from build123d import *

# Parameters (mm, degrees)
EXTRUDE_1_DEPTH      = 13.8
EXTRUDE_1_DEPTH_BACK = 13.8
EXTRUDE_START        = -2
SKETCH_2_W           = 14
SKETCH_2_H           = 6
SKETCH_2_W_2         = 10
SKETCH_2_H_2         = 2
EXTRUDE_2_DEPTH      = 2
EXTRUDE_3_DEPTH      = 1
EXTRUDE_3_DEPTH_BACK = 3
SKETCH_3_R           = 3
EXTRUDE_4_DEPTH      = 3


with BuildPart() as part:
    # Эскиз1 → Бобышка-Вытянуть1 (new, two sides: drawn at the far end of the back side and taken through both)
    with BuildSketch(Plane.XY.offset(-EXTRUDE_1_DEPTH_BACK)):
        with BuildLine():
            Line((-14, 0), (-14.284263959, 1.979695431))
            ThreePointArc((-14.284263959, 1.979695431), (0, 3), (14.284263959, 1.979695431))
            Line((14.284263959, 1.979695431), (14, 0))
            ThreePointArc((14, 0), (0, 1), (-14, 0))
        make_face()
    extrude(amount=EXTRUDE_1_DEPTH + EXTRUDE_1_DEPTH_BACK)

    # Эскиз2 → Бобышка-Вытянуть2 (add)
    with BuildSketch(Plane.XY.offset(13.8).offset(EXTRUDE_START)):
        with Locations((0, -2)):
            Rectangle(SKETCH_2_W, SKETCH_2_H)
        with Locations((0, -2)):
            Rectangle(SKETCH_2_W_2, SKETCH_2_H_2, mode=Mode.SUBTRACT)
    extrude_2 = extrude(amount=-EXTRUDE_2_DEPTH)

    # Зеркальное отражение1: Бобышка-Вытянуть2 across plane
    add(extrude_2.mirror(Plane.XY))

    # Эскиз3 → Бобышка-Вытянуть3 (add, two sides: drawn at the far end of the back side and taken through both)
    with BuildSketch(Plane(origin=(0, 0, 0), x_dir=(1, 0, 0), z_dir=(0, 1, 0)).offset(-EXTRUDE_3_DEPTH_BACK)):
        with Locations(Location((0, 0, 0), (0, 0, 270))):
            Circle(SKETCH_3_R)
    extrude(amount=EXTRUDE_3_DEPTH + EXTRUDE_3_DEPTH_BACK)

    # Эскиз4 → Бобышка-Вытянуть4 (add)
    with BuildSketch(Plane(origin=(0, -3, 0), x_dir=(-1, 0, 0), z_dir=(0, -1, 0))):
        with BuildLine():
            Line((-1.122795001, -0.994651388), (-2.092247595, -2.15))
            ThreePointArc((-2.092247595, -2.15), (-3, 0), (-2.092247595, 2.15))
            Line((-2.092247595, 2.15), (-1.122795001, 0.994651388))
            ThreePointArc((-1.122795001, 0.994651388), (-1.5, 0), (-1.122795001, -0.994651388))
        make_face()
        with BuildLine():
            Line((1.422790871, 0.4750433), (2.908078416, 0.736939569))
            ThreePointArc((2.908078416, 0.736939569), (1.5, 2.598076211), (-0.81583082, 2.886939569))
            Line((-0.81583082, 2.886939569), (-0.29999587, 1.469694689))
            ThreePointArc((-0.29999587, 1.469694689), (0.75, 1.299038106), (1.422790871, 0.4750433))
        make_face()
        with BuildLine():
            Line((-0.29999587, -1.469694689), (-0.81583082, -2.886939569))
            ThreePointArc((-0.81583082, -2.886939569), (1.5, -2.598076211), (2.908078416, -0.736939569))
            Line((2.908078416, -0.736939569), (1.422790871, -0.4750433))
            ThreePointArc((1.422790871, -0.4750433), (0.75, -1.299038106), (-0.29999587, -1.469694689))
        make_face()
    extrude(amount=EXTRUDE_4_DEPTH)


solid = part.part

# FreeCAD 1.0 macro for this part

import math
import FreeCAD as App
import Part
import Sketcher

V = App.Vector
Q = App.Units.Quantity


def add_polygon(sketch, points):
    """Adds a closed chain of lines whose ends are joined by coincident constraints."""
    first, n = sketch.GeometryCount, len(points)
    for a, b in zip(points, points[1:] + points[:1]):
        sketch.addGeometry(Part.LineSegment(App.Vector(*a, 0), App.Vector(*b, 0)), False)
    for i in range(n):
        sketch.addConstraint(Sketcher.Constraint("Coincident", first + i, 2, first + (i + 1) % n, 1))

doc = App.newDocument("Part")
body = doc.addObject("PartDesign::Body", "Body")

sketch1 = body.newObject("Sketcher::SketchObject", "Sketch")
sketch1.AttachmentSupport = (doc.getObject("XY_Plane"), [""])
sketch1.MapMode = "FlatFace"
sketch1.addGeometry(Part.LineSegment(V(-14.3, 2, 0), V(-14, 0, 0)), False)
sketch1.addGeometry(Part.ArcOfCircle(Part.Circle(V(0, -97.5, 0), V(0, 0, 1), 98.5), math.radians(81.83), math.radians(98.17)), False)
sketch1.addGeometry(Part.LineSegment(V(14, 0, 0), V(14.3, 2, 0)), False)
sketch1.addGeometry(Part.ArcOfCircle(Part.Circle(V(0, -97.5, 0), V(0, 0, 1), 100.5), math.radians(81.83), math.radians(98.17)), False)
sketch1.addConstraint(Sketcher.Constraint("Coincident", 0, 2, 1, 2))
sketch1.addConstraint(Sketcher.Constraint("Coincident", 1, 1, 2, 1))
sketch1.addConstraint(Sketcher.Constraint("Coincident", 2, 2, 3, 1))
sketch1.addConstraint(Sketcher.Constraint("Coincident", 3, 2, 0, 1))
sketch1.addConstraint(Sketcher.Constraint("Coincident", 3, 3, 1, 3))
sketch1.addConstraint(Sketcher.Constraint("Symmetric", 0, 2, 1, 1, -1, 1))
sketch1.addConstraint(Sketcher.Constraint("Symmetric", 2, 2, 3, 2, -2))
sketch1.addConstraint(Sketcher.Constraint("Radius", 1, Q("98.5 mm")))
sketch1.addConstraint(Sketcher.Constraint("Radius", 3, Q("100.5 mm")))
sketch1.addConstraint(Sketcher.Constraint("DistanceX", 0, 2, -1, 1, Q("14 mm")))
sketch1.addConstraint(Sketcher.Constraint("DistanceX", -1, 1, 2, 2, Q("14.284264 mm")))
pad1 = body.newObject("PartDesign::Pad", "Pad")
pad1.Profile = sketch1
pad1.Type = "TwoLengths"
pad1.Length = 13.8
pad1.Length2 = 13.8

sketch2 = body.newObject("Sketcher::SketchObject", "Sketch001")
sketch2.AttachmentSupport = (doc.getObject("XY_Plane"), [""])
sketch2.MapMode = "FlatFace"
sketch2.AttachmentOffset = App.Placement(V(0, 0, 11.8), App.Rotation())
add_polygon(sketch2, [(-7, 1), (-7, -5), (7, -5), (7, 1)])
add_polygon(sketch2, [(5, -3), (-5, -3), (-5, -1), (5, -1)])
sketch2.addConstraint(Sketcher.Constraint("Vertical", 0))
sketch2.addConstraint(Sketcher.Constraint("Horizontal", 1))
sketch2.addConstraint(Sketcher.Constraint("Vertical", 2))
sketch2.addConstraint(Sketcher.Constraint("Horizontal", 3))
sketch2.addConstraint(Sketcher.Constraint("Horizontal", 4))
sketch2.addConstraint(Sketcher.Constraint("Vertical", 5))
sketch2.addConstraint(Sketcher.Constraint("Horizontal", 6))
sketch2.addConstraint(Sketcher.Constraint("Vertical", 7))
sketch2.addConstraint(Sketcher.Constraint("DistanceX", 1, 1, 1, 2, Q("14 mm")))
sketch2.addConstraint(Sketcher.Constraint("DistanceX", 4, 2, 4, 1, Q("10 mm")))
sketch2.addConstraint(Sketcher.Constraint("DistanceY", 0, 2, 0, 1, Q("6 mm")))
sketch2.addConstraint(Sketcher.Constraint("DistanceY", 5, 1, 5, 2, Q("2 mm")))
sketch2.addConstraint(Sketcher.Constraint("DistanceX", 0, 2, -1, 1, Q("7 mm")))
sketch2.addConstraint(Sketcher.Constraint("DistanceY", 0, 2, -1, 1, Q("5 mm")))
sketch2.addConstraint(Sketcher.Constraint("DistanceX", 4, 2, -1, 1, Q("5 mm")))
sketch2.addConstraint(Sketcher.Constraint("DistanceY", 4, 2, -1, 1, Q("3 mm")))
pad2 = body.newObject("PartDesign::Pad", "Pad001")
pad2.Profile = sketch2
pad2.Length = 2
pad2.Reversed = True
doc.recompute()

mirrored = body.newObject("PartDesign::Mirrored", "Mirrored")
mirrored.Originals = [pad2]
mirrored.MirrorPlane = (doc.getObject("XY_Plane"), [""])
body.Tip = mirrored

sketch3 = body.newObject("Sketcher::SketchObject", "Sketch002")
sketch3.AttachmentSupport = (doc.getObject("XZ_Plane"), [""])
sketch3.MapMode = "FlatFace"
sketch3.addGeometry(Part.Circle(V(0, 0, 0), V(0, 0, 1), 3), False)
sketch3.addConstraint(Sketcher.Constraint("Coincident", 0, 3, -1, 1))
sketch3.addConstraint(Sketcher.Constraint("Diameter", 0, Q("6 mm")))
pad3 = body.newObject("PartDesign::Pad", "Pad002")
pad3.Profile = sketch3
pad3.Type = "TwoLengths"
pad3.Length = 1
pad3.Length2 = 3
pad3.Reversed = True

sketch4 = body.newObject("Sketcher::SketchObject", "Sketch003")
sketch4.AttachmentSupport = (doc.getObject("XZ_Plane"), [""])
sketch4.MapMode = "FlatFace"
sketch4.AttachmentOffset = App.Placement(V(0, 0, 3), App.Rotation())
sketch4.addGeometry(Part.LineSegment(V(2.1, 2.1, 0), V(1.1, 1, 0)), False)
sketch4.addGeometry(Part.ArcOfCircle(Part.Circle(V(0, 0, 0), V(0, 0, 1), 1.5), math.radians(-42), math.radians(42)), False)
sketch4.addGeometry(Part.LineSegment(V(1.1, -1, 0), V(2.1, -2.1, 0)), False)
sketch4.addGeometry(Part.ArcOfCircle(Part.Circle(V(0, 0, 0), V(0, 0, 1), 3), math.radians(-46), math.radians(46)), False)
sketch4.addGeometry(Part.LineSegment(V(-1.4, -0.5, 0), V(-2.9, -0.7, 0)), False)
sketch4.addGeometry(Part.ArcOfCircle(Part.Circle(V(0, 0, 0), V(0, 0, 1), 3), math.radians(-166), math.radians(-74)), False)
sketch4.addGeometry(Part.LineSegment(V(0.8, -2.9, 0), V(0.3, -1.5, 0)), False)
sketch4.addGeometry(Part.ArcOfCircle(Part.Circle(V(0, 0, 0), V(0, 0, 1), 1.5), math.radians(-162), math.radians(-78)), False)
sketch4.addGeometry(Part.LineSegment(V(0.3, 1.5, 0), V(0.8, 2.9, 0)), False)
sketch4.addGeometry(Part.ArcOfCircle(Part.Circle(V(0, 0, 0), V(0, 0, 1), 3), math.radians(74), math.radians(166)), False)
sketch4.addGeometry(Part.LineSegment(V(-2.9, 0.7, 0), V(-1.4, 0.5, 0)), False)
sketch4.addGeometry(Part.ArcOfCircle(Part.Circle(V(0, 0, 0), V(0, 0, 1), 1.5), math.radians(78), math.radians(162)), False)
sketch4.addConstraint(Sketcher.Constraint("Coincident", 0, 2, 1, 2))
sketch4.addConstraint(Sketcher.Constraint("Coincident", 1, 1, 2, 1))
sketch4.addConstraint(Sketcher.Constraint("Coincident", 2, 2, 3, 1))
sketch4.addConstraint(Sketcher.Constraint("Coincident", 3, 2, 0, 1))
sketch4.addConstraint(Sketcher.Constraint("Coincident", 4, 2, 5, 1))
sketch4.addConstraint(Sketcher.Constraint("Coincident", 5, 2, 6, 1))
sketch4.addConstraint(Sketcher.Constraint("Coincident", 6, 2, 7, 2))
sketch4.addConstraint(Sketcher.Constraint("Coincident", 7, 1, 4, 1))
sketch4.addConstraint(Sketcher.Constraint("Coincident", 8, 2, 9, 1))
sketch4.addConstraint(Sketcher.Constraint("Coincident", 9, 2, 10, 1))
sketch4.addConstraint(Sketcher.Constraint("Coincident", 10, 2, 11, 2))
sketch4.addConstraint(Sketcher.Constraint("Coincident", 11, 1, 8, 1))
sketch4.addConstraint(Sketcher.Constraint("Coincident", 1, 3, -1, 1))
sketch4.addConstraint(Sketcher.Constraint("Coincident", 3, 3, -1, 1))
sketch4.addConstraint(Sketcher.Constraint("Coincident", 5, 3, -1, 1))
sketch4.addConstraint(Sketcher.Constraint("Coincident", 7, 3, -1, 1))
sketch4.addConstraint(Sketcher.Constraint("Coincident", 9, 3, -1, 1))
sketch4.addConstraint(Sketcher.Constraint("Coincident", 11, 3, -1, 1))
sketch4.addConstraint(Sketcher.Constraint("Equal", 3, 5))
sketch4.addConstraint(Sketcher.Constraint("Equal", 1, 7))
sketch4.addConstraint(Sketcher.Constraint("Equal", 5, 9))
sketch4.addConstraint(Sketcher.Constraint("Equal", 7, 11))
sketch4.addConstraint(Sketcher.Constraint("Vertical", 0, 2, 1, 1))
sketch4.addConstraint(Sketcher.Constraint("Vertical", 2, 2, 3, 2))
sketch4.addConstraint(Sketcher.Constraint("Vertical", 5, 2, 8, 2))
sketch4.addConstraint(Sketcher.Constraint("Vertical", 4, 2, 9, 2))
sketch4.addConstraint(Sketcher.Constraint("Vertical", 7, 1, 10, 2))
sketch4.addConstraint(Sketcher.Constraint("Vertical", 6, 2, 11, 1))
sketch4.addConstraint(Sketcher.Constraint("Equal", 2, 4))
sketch4.addConstraint(Sketcher.Constraint("Equal", 4, 6))
sketch4.addConstraint(Sketcher.Constraint("Radius", 3, Q("3 mm")))
sketch4.addConstraint(Sketcher.Constraint("Radius", 1, Q("1.5 mm")))
sketch4.addConstraint(Sketcher.Constraint("Angle", 0, Q("-130 deg")))
sketch4.addConstraint(Sketcher.Constraint("Angle", 4, Q("-170 deg")))
sketch4.addConstraint(Sketcher.Constraint("Angle", 6, Q("110 deg")))
sketch4.addConstraint(Sketcher.Constraint("DistanceY", 2, 2, -1, 1, Q("2.15 mm")))
pad4 = body.newObject("PartDesign::Pad", "Pad003")
pad4.Profile = sketch4
pad4.Length = 3

doc.recompute()
